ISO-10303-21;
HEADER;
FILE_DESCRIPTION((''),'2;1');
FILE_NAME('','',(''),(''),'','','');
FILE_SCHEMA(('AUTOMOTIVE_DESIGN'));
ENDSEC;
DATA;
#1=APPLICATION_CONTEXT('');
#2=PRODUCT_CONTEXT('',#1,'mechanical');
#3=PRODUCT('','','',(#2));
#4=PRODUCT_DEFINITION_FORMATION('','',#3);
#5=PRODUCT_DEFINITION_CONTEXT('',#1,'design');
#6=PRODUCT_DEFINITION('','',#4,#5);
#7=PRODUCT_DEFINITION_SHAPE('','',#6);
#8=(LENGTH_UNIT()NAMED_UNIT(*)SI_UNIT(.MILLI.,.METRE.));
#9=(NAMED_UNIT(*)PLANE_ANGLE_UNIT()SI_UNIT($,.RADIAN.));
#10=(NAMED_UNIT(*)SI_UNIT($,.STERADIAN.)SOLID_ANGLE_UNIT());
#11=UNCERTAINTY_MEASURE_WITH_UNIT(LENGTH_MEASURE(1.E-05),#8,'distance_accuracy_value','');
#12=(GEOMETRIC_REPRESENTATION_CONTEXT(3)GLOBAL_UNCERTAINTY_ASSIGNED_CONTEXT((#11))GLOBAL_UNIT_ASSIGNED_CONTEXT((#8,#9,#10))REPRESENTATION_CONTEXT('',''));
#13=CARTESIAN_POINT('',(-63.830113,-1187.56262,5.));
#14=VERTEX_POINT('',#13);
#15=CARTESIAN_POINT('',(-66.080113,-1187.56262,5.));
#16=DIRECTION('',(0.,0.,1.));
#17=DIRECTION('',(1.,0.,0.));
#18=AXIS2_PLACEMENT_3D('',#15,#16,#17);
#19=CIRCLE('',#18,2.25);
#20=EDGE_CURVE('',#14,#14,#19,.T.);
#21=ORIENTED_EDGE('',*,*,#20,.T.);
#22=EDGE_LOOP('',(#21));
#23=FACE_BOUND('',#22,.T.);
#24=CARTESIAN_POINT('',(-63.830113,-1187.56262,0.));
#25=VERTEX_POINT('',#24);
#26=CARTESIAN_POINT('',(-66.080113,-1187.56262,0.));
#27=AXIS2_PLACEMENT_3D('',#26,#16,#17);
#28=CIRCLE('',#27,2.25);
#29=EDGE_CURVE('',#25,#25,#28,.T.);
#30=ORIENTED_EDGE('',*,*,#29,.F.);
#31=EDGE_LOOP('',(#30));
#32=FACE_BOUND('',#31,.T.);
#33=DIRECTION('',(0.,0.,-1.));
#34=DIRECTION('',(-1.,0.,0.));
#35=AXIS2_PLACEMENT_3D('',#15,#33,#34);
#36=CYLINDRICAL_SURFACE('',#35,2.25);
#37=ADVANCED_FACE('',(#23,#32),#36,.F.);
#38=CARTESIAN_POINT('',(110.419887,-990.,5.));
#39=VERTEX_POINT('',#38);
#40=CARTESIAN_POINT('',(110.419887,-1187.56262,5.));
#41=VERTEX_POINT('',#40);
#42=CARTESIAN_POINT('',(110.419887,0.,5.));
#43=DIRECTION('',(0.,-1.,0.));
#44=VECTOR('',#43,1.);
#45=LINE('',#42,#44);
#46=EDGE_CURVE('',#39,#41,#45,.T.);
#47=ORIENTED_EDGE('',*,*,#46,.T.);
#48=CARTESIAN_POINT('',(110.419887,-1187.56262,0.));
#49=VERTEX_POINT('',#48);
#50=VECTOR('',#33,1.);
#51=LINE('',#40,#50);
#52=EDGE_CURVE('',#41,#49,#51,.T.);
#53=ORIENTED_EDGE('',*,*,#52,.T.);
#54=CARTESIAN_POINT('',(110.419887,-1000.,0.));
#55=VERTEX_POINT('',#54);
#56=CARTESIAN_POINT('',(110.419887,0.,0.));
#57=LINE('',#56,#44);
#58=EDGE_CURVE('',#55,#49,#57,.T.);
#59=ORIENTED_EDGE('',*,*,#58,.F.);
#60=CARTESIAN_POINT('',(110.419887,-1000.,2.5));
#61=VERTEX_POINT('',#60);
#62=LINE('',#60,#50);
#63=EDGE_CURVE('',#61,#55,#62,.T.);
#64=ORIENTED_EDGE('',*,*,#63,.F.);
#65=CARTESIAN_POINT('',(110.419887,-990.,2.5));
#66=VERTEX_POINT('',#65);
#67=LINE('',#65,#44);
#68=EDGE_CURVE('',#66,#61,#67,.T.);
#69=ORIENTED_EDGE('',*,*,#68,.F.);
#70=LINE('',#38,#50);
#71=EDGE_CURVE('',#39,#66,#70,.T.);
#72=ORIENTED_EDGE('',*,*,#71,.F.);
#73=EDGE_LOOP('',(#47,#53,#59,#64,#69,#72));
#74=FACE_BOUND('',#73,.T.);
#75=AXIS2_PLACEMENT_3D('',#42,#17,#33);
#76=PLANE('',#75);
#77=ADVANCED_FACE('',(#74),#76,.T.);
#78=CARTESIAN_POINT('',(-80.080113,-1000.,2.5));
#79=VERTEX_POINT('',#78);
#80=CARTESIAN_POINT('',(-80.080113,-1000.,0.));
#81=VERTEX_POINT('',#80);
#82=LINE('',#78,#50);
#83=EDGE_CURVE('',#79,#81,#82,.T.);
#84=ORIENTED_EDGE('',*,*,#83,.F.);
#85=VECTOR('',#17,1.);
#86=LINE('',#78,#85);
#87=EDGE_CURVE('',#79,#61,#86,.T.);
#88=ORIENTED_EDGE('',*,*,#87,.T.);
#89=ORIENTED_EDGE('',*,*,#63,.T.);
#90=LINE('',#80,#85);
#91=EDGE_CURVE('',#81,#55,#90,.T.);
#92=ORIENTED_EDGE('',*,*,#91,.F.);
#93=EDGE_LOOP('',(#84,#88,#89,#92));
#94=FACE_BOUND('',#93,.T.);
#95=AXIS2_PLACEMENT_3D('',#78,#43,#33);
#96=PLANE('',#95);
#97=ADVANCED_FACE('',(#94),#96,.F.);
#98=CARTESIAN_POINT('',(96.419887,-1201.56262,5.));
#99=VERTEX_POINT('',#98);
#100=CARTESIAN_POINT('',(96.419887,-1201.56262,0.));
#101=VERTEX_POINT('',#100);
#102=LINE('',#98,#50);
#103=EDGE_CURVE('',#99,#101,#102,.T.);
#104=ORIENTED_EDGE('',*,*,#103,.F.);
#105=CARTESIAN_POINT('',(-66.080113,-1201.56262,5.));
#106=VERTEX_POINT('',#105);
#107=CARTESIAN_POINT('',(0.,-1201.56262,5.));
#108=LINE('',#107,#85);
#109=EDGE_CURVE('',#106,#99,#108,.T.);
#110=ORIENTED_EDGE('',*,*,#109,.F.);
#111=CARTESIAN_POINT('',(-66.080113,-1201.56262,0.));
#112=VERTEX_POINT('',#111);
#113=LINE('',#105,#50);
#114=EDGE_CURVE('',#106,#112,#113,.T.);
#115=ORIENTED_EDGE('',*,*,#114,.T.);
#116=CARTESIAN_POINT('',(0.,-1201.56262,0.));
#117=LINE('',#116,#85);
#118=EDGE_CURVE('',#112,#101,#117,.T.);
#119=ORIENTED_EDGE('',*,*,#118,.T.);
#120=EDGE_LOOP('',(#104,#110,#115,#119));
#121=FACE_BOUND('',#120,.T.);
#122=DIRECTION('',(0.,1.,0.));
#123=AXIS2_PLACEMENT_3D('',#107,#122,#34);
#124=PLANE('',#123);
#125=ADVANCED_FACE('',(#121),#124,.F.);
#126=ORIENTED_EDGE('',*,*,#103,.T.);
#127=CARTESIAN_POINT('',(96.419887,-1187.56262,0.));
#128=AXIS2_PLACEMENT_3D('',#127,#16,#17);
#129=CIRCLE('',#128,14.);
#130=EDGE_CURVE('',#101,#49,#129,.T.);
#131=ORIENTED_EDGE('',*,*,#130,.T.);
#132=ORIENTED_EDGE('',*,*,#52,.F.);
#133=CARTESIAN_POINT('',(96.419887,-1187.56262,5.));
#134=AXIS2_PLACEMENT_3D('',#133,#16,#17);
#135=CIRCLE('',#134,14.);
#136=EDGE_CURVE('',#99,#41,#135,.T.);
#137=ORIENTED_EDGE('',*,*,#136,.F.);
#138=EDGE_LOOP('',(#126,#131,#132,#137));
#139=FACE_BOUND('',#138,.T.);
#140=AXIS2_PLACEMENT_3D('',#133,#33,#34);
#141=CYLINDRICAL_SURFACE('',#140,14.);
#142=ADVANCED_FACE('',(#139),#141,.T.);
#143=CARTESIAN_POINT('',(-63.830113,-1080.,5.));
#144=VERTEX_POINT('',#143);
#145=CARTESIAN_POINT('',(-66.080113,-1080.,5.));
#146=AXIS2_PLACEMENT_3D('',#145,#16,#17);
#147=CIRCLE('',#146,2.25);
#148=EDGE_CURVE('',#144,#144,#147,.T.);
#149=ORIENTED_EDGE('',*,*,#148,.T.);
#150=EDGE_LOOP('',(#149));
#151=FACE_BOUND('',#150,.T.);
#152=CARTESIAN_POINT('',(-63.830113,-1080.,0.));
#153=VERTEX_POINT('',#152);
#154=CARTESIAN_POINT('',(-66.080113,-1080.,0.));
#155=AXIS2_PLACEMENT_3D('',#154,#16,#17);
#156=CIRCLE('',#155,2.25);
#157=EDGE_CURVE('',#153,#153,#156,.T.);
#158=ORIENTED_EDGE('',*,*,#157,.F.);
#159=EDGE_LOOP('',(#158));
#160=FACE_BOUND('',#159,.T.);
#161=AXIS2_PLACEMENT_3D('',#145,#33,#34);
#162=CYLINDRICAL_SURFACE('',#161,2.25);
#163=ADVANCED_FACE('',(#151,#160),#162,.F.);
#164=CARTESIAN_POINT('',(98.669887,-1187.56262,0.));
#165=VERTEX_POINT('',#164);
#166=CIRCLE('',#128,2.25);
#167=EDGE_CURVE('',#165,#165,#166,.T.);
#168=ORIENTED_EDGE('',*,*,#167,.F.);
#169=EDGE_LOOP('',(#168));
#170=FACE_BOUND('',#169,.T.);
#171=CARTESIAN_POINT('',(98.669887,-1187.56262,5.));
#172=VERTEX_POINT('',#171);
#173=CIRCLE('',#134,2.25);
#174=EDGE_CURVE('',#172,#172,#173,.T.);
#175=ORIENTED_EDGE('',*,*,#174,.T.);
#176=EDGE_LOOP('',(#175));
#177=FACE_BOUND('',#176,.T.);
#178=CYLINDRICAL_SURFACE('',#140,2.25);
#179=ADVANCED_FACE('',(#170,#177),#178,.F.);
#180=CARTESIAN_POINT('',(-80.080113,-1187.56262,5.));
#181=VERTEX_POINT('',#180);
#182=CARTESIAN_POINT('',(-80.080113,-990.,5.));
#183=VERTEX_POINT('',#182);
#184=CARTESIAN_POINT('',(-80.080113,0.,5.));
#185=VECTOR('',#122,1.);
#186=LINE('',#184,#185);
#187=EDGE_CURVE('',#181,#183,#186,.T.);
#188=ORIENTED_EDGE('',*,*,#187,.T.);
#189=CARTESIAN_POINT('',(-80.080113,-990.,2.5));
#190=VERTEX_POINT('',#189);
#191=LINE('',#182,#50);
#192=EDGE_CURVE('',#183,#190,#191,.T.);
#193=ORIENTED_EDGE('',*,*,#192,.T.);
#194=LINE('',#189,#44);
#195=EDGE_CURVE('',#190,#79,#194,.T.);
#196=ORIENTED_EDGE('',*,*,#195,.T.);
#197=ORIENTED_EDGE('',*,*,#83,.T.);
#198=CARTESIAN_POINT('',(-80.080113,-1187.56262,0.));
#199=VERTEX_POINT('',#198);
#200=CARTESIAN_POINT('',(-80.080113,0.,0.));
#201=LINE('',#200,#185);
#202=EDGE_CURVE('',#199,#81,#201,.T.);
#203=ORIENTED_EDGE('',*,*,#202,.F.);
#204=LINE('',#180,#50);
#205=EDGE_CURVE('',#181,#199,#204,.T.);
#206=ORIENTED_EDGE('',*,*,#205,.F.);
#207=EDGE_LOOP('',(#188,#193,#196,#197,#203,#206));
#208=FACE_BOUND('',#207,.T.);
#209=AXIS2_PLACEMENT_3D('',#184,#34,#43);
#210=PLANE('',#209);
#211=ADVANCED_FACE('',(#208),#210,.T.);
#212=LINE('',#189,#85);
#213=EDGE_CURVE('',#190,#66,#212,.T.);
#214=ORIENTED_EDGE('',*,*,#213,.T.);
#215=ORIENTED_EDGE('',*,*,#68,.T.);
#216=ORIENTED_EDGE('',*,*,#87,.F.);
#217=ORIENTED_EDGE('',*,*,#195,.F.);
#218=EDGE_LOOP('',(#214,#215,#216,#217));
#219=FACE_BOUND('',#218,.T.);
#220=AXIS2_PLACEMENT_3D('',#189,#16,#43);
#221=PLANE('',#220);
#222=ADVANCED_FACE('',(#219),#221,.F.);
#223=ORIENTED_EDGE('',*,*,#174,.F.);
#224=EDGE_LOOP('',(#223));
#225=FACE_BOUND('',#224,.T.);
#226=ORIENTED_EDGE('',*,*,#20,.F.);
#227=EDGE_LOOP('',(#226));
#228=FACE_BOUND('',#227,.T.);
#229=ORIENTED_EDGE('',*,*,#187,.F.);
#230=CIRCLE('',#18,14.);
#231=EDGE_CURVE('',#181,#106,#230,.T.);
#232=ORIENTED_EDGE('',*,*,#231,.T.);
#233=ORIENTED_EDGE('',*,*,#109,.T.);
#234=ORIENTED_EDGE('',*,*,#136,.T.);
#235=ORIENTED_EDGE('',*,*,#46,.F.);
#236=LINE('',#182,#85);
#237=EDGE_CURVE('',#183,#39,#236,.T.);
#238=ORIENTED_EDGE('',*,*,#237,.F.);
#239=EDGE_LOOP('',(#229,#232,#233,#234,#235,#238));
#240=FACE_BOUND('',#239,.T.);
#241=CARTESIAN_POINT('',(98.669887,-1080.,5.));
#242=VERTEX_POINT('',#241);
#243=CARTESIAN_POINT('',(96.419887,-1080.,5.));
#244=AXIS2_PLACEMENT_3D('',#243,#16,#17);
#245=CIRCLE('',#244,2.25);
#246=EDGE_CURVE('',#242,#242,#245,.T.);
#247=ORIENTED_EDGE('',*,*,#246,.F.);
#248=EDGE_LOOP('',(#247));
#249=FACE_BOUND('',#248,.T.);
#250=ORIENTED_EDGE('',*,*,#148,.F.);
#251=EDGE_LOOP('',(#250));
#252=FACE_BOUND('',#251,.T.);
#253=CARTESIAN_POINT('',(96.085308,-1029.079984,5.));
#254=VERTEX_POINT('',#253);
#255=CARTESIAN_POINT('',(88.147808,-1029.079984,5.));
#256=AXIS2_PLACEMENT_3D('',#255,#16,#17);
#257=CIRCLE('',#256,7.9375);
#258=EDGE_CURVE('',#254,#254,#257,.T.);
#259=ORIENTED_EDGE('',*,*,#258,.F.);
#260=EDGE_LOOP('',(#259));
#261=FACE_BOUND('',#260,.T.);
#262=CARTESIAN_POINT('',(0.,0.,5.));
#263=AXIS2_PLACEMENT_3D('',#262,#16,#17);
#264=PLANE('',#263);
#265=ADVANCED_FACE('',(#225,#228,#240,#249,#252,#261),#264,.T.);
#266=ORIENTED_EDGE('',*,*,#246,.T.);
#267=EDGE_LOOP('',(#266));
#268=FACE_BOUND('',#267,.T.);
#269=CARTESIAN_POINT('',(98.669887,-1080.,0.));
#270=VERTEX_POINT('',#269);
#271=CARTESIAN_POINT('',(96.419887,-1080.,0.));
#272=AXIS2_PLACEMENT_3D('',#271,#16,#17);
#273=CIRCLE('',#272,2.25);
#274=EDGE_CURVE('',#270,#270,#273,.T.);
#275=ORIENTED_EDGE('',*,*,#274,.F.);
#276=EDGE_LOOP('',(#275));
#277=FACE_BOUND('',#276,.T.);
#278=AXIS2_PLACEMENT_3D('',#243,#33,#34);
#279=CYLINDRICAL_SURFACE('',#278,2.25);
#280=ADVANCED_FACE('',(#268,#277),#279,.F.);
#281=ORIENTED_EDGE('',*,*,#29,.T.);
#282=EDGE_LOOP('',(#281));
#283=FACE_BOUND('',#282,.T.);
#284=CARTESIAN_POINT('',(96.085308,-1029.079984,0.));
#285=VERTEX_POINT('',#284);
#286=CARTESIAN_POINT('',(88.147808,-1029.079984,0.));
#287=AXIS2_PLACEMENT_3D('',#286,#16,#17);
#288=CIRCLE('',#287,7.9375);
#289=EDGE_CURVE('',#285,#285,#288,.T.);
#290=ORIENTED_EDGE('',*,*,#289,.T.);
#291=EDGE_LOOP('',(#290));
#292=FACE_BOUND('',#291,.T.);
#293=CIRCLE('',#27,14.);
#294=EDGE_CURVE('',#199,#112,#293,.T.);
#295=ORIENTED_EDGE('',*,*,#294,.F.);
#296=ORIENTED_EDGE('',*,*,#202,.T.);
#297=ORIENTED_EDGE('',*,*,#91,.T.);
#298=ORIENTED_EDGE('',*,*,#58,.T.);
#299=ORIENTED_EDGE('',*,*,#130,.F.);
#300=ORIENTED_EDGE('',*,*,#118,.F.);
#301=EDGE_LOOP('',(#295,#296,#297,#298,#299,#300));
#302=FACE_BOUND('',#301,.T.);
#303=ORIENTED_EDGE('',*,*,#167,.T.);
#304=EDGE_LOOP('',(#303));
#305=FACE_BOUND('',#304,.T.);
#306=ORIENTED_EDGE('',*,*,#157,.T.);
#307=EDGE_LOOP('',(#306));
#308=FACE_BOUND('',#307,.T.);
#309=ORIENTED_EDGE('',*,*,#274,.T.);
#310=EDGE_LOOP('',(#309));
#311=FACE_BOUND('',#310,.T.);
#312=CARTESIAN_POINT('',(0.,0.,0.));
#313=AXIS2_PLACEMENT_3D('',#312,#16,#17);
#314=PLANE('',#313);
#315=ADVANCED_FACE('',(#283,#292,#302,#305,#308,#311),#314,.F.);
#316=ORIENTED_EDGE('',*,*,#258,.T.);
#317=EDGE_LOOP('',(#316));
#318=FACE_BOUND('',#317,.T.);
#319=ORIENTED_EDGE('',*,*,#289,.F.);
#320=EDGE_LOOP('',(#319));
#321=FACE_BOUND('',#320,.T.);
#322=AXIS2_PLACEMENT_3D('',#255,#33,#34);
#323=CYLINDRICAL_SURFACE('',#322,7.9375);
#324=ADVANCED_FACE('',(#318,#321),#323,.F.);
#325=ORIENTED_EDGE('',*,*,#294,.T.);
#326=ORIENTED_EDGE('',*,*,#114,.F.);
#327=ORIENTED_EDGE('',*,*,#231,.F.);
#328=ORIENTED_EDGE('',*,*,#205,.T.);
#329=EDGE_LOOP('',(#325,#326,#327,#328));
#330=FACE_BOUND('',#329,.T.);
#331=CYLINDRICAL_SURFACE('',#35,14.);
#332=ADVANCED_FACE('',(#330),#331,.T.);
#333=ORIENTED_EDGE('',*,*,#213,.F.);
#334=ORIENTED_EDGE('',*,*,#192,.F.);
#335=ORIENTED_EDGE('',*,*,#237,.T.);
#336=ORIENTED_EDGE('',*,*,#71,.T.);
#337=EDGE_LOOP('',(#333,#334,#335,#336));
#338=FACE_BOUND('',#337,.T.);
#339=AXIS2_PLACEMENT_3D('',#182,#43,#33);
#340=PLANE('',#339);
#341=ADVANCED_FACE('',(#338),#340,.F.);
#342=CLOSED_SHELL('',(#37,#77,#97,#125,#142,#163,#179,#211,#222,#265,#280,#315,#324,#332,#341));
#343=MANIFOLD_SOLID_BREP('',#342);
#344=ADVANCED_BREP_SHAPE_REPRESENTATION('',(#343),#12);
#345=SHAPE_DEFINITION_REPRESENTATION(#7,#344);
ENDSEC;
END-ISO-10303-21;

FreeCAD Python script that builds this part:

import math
import FreeCAD as App
import Part
import Sketcher

doc = App.newDocument("Part")
body = doc.addObject("PartDesign::Body", "Body")

# Sketch on XY plane
sketch1 = body.newObject("Sketcher::SketchObject", "Sketch")
sketch1.AttachmentSupport = (doc.getObject("XY_Plane"), [""])
sketch1.MapMode = "FlatFace"
sketch1.addGeometry(Part.LineSegment(App.Vector(-66.1, -1201.6, 0), App.Vector(96.4, -1201.6, 0)), False)
sketch1.addGeometry(Part.ArcOfCircle(Part.Circle(App.Vector(96.4, -1187.6, 0), App.Vector(0, 0, 1), 14), math.radians(-90), math.radians(0)), False)
sketch1.addGeometry(Part.LineSegment(App.Vector(110.4, -1187.6, 0), App.Vector(110.4, -812.4, 0)), False)
sketch1.addGeometry(Part.ArcOfCircle(Part.Circle(App.Vector(96.4, -812.4, 0), App.Vector(0, 0, 1), 14), math.radians(0), math.radians(90)), False)
sketch1.addGeometry(Part.LineSegment(App.Vector(96.4, -798.4, 0), App.Vector(-66.1, -798.4, 0)), False)
sketch1.addGeometry(Part.ArcOfCircle(Part.Circle(App.Vector(-66.1, -812.4, 0), App.Vector(0, 0, 1), 14), math.radians(90), math.radians(180)), False)
sketch1.addGeometry(Part.LineSegment(App.Vector(-80.1, -812.4, 0), App.Vector(-80.1, -1187.6, 0)), False)
sketch1.addGeometry(Part.ArcOfCircle(Part.Circle(App.Vector(-66.1, -1187.6, 0), App.Vector(0, 0, 1), 14), math.radians(180), math.radians(270)), False)
sketch1.addGeometry(Part.Circle(App.Vector(-66.1, -1187.6, 0), App.Vector(0, 0, 1), 2.2), False)
sketch1.addGeometry(Part.Circle(App.Vector(-66.1, -1080, 0), App.Vector(0, 0, 1), 2.2), False)
sketch1.addGeometry(Part.Circle(App.Vector(96.4, -1187.6, 0), App.Vector(0, 0, 1), 2.2), False)
sketch1.addGeometry(Part.Circle(App.Vector(96.4, -1080, 0), App.Vector(0, 0, 1), 2.2), False)
sketch1.addGeometry(Part.Circle(App.Vector(88.1, -1029.1, 0), App.Vector(0, 0, 1), 7.9), False)
sketch1.addGeometry(Part.Circle(App.Vector(-66.1, -920, 0), App.Vector(0, 0, 1), 2.2), False)
sketch1.addGeometry(Part.Circle(App.Vector(-66.1, -812.4, 0), App.Vector(0, 0, 1), 2.2), False)
sketch1.addGeometry(Part.Circle(App.Vector(96.4, -920, 0), App.Vector(0, 0, 1), 2.2), False)
sketch1.addGeometry(Part.Circle(App.Vector(96.4, -812.4, 0), App.Vector(0, 0, 1), 2.2), False)
sketch1.addConstraint(Sketcher.Constraint("Tangent", 0, 2, 1, 1))
sketch1.addConstraint(Sketcher.Constraint("Tangent", 1, 2, 2, 1))
sketch1.addConstraint(Sketcher.Constraint("Tangent", 2, 2, 3, 1))
sketch1.addConstraint(Sketcher.Constraint("Tangent", 3, 2, 4, 1))
sketch1.addConstraint(Sketcher.Constraint("Tangent", 4, 2, 5, 1))
sketch1.addConstraint(Sketcher.Constraint("Tangent", 5, 2, 6, 1))
sketch1.addConstraint(Sketcher.Constraint("Tangent", 6, 2, 7, 1))
sketch1.addConstraint(Sketcher.Constraint("Tangent", 7, 2, 0, 1))
sketch1.addConstraint(Sketcher.Constraint("Horizontal", 0))
sketch1.addConstraint(Sketcher.Constraint("Vertical", 2))
sketch1.addConstraint(Sketcher.Constraint("Horizontal", 4))
sketch1.addConstraint(Sketcher.Constraint("Vertical", 6))
sketch1.addConstraint(Sketcher.Constraint("Coincident", 8, 3, 7, 3))
sketch1.addConstraint(Sketcher.Constraint("Coincident", 10, 3, 1, 3))
sketch1.addConstraint(Sketcher.Constraint("Coincident", 14, 3, 5, 3))
sketch1.addConstraint(Sketcher.Constraint("Coincident", 16, 3, 3, 3))
sketch1.addConstraint(Sketcher.Constraint("Equal", 1, 3))
sketch1.addConstraint(Sketcher.Constraint("Equal", 3, 5))
sketch1.addConstraint(Sketcher.Constraint("Equal", 5, 7))
sketch1.addConstraint(Sketcher.Constraint("Equal", 8, 9))
sketch1.addConstraint(Sketcher.Constraint("Equal", 9, 10))
sketch1.addConstraint(Sketcher.Constraint("Equal", 10, 11))
sketch1.addConstraint(Sketcher.Constraint("Equal", 11, 13))
sketch1.addConstraint(Sketcher.Constraint("Equal", 13, 14))
sketch1.addConstraint(Sketcher.Constraint("Equal", 14, 15))
sketch1.addConstraint(Sketcher.Constraint("Equal", 15, 16))
sketch1.addConstraint(Sketcher.Constraint("Horizontal", 9, 3, 11, 3))
sketch1.addConstraint(Sketcher.Constraint("Horizontal", 13, 3, 15, 3))
sketch1.addConstraint(Sketcher.Constraint("Vertical", 8, 3, 9, 3))
sketch1.addConstraint(Sketcher.Constraint("Vertical", 10, 3, 11, 3))
sketch1.addConstraint(Sketcher.Constraint("Vertical", 9, 3, 13, 3))
sketch1.addConstraint(Sketcher.Constraint("Vertical", 11, 3, 15, 3))
sketch1.addConstraint(Sketcher.Constraint("Radius", 1, 14.0))
sketch1.addConstraint(Sketcher.Constraint("Diameter", 8, 4.5))
sketch1.addConstraint(Sketcher.Constraint("Diameter", 12, 15.875))
sketch1.addConstraint(Sketcher.Constraint("DistanceX", 0, 1, 0, 2, 162.5))
sketch1.addConstraint(Sketcher.Constraint("DistanceY", 9, 3, -1, 1, 1080.0))
sketch1.addConstraint(Sketcher.Constraint("DistanceY", 13, 3, -1, 1, 920.0))
sketch1.addConstraint(Sketcher.Constraint("DistanceY", 2, 1, 2, 2, 375.12524))
sketch1.addConstraint(Sketcher.Constraint("DistanceY", 1, 3, -1, 1, 1187.56262))
sketch1.addConstraint(Sketcher.Constraint("DistanceX", -1, 1, 12, 3, 88.147808))
sketch1.addConstraint(Sketcher.Constraint("DistanceX", 12, 3, 11, 3, 8.272079))
sketch1.addConstraint(Sketcher.Constraint("DistanceY", 12, 3, -1, 1, 1029.079984))
pad1 = body.newObject("PartDesign::Pad", "Pad")
pad1.Profile = sketch1
pad1.Length = 5

# Sketch on YZ plane
sketch2 = body.newObject("Sketcher::SketchObject", "Sketch001")
sketch2.AttachmentSupport = (doc.getObject("YZ_Plane"), [""])
sketch2.MapMode = "FlatFace"
sketch2.AttachmentOffset = App.Placement(App.Vector(0, 0, 110.419887), App.Rotation())
sketch2.addGeometry(Part.LineSegment(App.Vector(-990, 5, 0), App.Vector(-990, 2.5, 0)), False)
sketch2.addGeometry(Part.LineSegment(App.Vector(-990, 2.5, 0), App.Vector(-1000, 2.5, 0)), False)
sketch2.addGeometry(Part.LineSegment(App.Vector(-1000, 2.5, 0), App.Vector(-1000, 0, 0)), False)
sketch2.addGeometry(Part.LineSegment(App.Vector(-1000, 0, 0), App.Vector(-812.4, -102.7, 0)), False)
sketch2.addGeometry(Part.LineSegment(App.Vector(-812.4, -102.7, 0), App.Vector(-690.5, 56.6, 0)), False)
sketch2.addGeometry(Part.LineSegment(App.Vector(-690.5, 56.6, 0), App.Vector(-898.2, 113.6, 0)), False)
sketch2.addGeometry(Part.LineSegment(App.Vector(-898.2, 113.6, 0), App.Vector(-990, 5, 0)), False)
sketch2.addConstraint(Sketcher.Constraint("Coincident", 0, 2, 1, 1))
sketch2.addConstraint(Sketcher.Constraint("Coincident", 1, 2, 2, 1))
sketch2.addConstraint(Sketcher.Constraint("Coincident", 2, 2, 3, 1))
sketch2.addConstraint(Sketcher.Constraint("Coincident", 3, 2, 4, 1))
sketch2.addConstraint(Sketcher.Constraint("Coincident", 4, 2, 5, 1))
sketch2.addConstraint(Sketcher.Constraint("Coincident", 5, 2, 6, 1))
sketch2.addConstraint(Sketcher.Constraint("Coincident", 6, 2, 0, 1))
sketch2.addConstraint(Sketcher.Constraint("Vertical", 0))
sketch2.addConstraint(Sketcher.Constraint("Horizontal", 1))
sketch2.addConstraint(Sketcher.Constraint("Vertical", 2))
sketch2.addConstraint(Sketcher.Constraint("PointOnObject", 2, 2, -1))
sketch2.addConstraint(Sketcher.Constraint("Equal", 0, 2))
sketch2.addConstraint(Sketcher.Constraint("DistanceX", 1, 2, 1, 1, 10.0))
sketch2.addConstraint(Sketcher.Constraint("DistanceY", 0, 2, 0, 1, 2.5))
sketch2.addConstraint(Sketcher.Constraint("DistanceX", 0, 2, -1, 1, 990.0))
sketch2.addConstraint(Sketcher.Constraint("DistanceX", 3, 2, -1, 1, 812.43738))
sketch2.addConstraint(Sketcher.Constraint("DistanceY", 3, 2, -1, 1, 102.688211))
sketch2.addConstraint(Sketcher.Constraint("DistanceY", -1, 1, 4, 2, 56.64152))
sketch2.addConstraint(Sketcher.Constraint("Distance", 4, 200.657644))
sketch2.addConstraint(Sketcher.Constraint("Distance", 5, 215.435344))
sketch2.addConstraint(Sketcher.Constraint("Distance", 6, 142.206175))
pocket1 = body.newObject("PartDesign::Pocket", "Pocket")
pocket1.Profile = sketch2
pocket1.Type = "ThroughAll"

doc.recompute()
